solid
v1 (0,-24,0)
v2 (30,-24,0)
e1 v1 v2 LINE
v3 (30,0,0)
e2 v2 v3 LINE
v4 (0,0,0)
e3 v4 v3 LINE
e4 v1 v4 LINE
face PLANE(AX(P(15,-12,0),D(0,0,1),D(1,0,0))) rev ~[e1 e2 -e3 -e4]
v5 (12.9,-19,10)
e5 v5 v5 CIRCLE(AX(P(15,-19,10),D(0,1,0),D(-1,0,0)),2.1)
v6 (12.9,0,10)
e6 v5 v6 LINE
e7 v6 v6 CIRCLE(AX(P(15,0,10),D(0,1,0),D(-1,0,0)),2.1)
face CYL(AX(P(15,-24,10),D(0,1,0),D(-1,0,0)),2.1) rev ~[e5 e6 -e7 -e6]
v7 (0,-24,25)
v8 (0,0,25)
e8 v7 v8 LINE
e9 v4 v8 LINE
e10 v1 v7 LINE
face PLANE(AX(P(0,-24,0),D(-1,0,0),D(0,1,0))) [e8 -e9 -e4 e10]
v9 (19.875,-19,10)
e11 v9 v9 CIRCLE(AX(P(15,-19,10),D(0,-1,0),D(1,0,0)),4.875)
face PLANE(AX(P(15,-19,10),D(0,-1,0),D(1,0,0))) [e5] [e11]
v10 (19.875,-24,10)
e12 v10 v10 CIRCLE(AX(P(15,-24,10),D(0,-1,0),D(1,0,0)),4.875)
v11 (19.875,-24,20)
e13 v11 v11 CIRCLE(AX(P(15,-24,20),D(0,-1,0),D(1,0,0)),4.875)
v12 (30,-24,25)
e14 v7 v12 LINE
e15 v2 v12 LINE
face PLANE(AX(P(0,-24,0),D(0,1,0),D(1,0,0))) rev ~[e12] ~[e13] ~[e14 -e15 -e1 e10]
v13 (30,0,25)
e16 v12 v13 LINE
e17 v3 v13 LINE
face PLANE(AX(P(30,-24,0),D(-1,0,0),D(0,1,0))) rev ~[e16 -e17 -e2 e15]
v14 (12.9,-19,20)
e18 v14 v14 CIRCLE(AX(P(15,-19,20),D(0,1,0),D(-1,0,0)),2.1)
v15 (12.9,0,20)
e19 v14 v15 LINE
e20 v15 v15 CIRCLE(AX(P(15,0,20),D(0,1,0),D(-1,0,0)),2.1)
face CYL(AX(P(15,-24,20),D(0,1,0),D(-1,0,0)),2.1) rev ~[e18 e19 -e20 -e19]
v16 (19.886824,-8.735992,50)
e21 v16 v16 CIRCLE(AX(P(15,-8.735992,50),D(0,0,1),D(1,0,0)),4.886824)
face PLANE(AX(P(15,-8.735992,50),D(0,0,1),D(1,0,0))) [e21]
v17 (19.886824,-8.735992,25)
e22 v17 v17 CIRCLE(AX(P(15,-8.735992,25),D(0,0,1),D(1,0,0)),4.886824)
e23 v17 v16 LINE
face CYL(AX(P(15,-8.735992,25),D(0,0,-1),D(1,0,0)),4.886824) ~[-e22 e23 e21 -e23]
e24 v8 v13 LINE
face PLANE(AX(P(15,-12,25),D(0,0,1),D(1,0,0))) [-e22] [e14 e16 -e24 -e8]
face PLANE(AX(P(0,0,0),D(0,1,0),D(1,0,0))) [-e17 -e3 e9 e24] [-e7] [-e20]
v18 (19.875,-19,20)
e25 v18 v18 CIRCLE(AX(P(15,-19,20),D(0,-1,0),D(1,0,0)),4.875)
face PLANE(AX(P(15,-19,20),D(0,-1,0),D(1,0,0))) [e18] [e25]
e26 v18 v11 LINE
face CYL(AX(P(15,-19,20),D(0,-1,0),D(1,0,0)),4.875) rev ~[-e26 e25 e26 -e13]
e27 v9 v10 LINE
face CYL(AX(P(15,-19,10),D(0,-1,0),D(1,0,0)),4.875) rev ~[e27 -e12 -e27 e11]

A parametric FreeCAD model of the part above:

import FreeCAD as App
import Part
import Sketcher

V = App.Vector

doc = App.newDocument("Part")
params = doc.addObject("Spreadsheet::Sheet", "Params")
for row, (alias, value) in enumerate([
    ("sketch1_width", "30 mm"),
    ("sketch1_height", "24 mm"),
    ("pad1_length", "25 mm"),
    ("sketch2_diameter", "4.2 mm"),
    ("hole_diameter", "4.2 mm"),
    ("hole_cbore_diameter", "9.75 mm"),
    ("hole_cbore_depth", "5 mm"),
    ("pad2_length", "25 mm"),
], start=1):
    params.set(f"A{row}", alias)
    params.set(f"B{row}", "=" + value)
    params.setAlias(f"B{row}", alias)

body = doc.addObject("PartDesign::Body", "Body")

sketch1 = body.newObject("Sketcher::SketchObject", "Sketch")
sketch1.AttachmentSupport = (doc.getObject("XY_Plane"), [""])
sketch1.MapMode = "FlatFace"
sketch1.addGeometry([
    Part.LineSegment(V(0, 0, 0), V(0, -24, 0)),
    Part.LineSegment(V(0, -24, 0), V(30, -24, 0)),
    Part.LineSegment(V(30, -24, 0), V(30, 0, 0)),
    Part.LineSegment(V(30, 0, 0), V(0, 0, 0)),
], False)
sketch1.addConstraint([
    Sketcher.Constraint("Coincident", 0, 2, 1, 1),
    Sketcher.Constraint("Coincident", 1, 2, 2, 1),
    Sketcher.Constraint("Coincident", 2, 2, 3, 1),
    Sketcher.Constraint("Coincident", 3, 2, 0, 1),
    Sketcher.Constraint("Vertical", 0),
    Sketcher.Constraint("Horizontal", 1),
    Sketcher.Constraint("Vertical", 2),
    Sketcher.Constraint("Horizontal", 3),
    Sketcher.Constraint("Coincident", 3, 2, -1, 1),
    Sketcher.Constraint("DistanceX", 1, 1, 1, 2, 30.0),
    Sketcher.Constraint("DistanceY", 0, 2, 0, 1, 24.0),
])
sketch1.setExpression("Constraints[9]", "Params.sketch1_width")
sketch1.setExpression("Constraints[10]", "Params.sketch1_height")
pad1 = body.newObject("PartDesign::Pad", "Pad")
pad1.Profile = sketch1
pad1.setExpression("Length", "Params.pad1_length")

sketch2 = body.newObject("Sketcher::SketchObject", "Sketch001")
sketch2.AttachmentSupport = (doc.getObject("XZ_Plane"), [""])
sketch2.MapMode = "FlatFace"
sketch2.AttachmentOffset = App.Placement(V(0, 0, 24), App.Rotation())
sketch2.addGeometry([
    Part.Circle(V(15, 20, 0), V(0, 0, 1), 2.1),
    Part.Circle(V(15, 10, 0), V(0, 0, 1), 2.1),
], False)
sketch2.addConstraint([
    Sketcher.Constraint("Equal", 0, 1),
    Sketcher.Constraint("Vertical", 0, 3, 1, 3),
    Sketcher.Constraint("Diameter", 0, 4.2),
    Sketcher.Constraint("DistanceX", -1, 1, 0, 3, 15.0),
    Sketcher.Constraint("DistanceY", -1, 1, 0, 3, 20.0),
    Sketcher.Constraint("DistanceY", -1, 1, 1, 3, 10.0),
])
sketch2.setExpression("Constraints[2]", "Params.sketch2_diameter")
doc.recompute()
hole = body.newObject("PartDesign::Hole", "Hole")
hole.Profile = sketch2
hole.ThreadType = "None"
hole.setExpression("Diameter", "Params.hole_diameter")
hole.DepthType = "ThroughAll"
hole.HoleCutType = "Counterbore"
hole.setExpression("HoleCutDiameter", "Params.hole_cbore_diameter")
hole.setExpression("HoleCutDepth", "Params.hole_cbore_depth")

sketch3 = body.newObject("Sketcher::SketchObject", "Sketch002")
sketch3.AttachmentSupport = (doc.getObject("XY_Plane"), [""])
sketch3.MapMode = "FlatFace"
sketch3.AttachmentOffset = App.Placement(V(0, 0, 25), App.Rotation())
sketch3.addGeometry(Part.Circle(V(15, -8.7, 0), V(0, 0, 1), 4.9), False)
sketch3.addConstraint([
    Sketcher.Constraint("DistanceX", -1, 1, 0, 3, 15.0),
    Sketcher.Constraint("Diameter", 0, 9.773648),
    Sketcher.Constraint("DistanceY", 0, 3, -1, 1, 8.735992),
])
pad2 = body.newObject("PartDesign::Pad", "Pad001")
pad2.Profile = sketch3
pad2.setExpression("Length", "Params.pad2_length")

doc.recompute()
